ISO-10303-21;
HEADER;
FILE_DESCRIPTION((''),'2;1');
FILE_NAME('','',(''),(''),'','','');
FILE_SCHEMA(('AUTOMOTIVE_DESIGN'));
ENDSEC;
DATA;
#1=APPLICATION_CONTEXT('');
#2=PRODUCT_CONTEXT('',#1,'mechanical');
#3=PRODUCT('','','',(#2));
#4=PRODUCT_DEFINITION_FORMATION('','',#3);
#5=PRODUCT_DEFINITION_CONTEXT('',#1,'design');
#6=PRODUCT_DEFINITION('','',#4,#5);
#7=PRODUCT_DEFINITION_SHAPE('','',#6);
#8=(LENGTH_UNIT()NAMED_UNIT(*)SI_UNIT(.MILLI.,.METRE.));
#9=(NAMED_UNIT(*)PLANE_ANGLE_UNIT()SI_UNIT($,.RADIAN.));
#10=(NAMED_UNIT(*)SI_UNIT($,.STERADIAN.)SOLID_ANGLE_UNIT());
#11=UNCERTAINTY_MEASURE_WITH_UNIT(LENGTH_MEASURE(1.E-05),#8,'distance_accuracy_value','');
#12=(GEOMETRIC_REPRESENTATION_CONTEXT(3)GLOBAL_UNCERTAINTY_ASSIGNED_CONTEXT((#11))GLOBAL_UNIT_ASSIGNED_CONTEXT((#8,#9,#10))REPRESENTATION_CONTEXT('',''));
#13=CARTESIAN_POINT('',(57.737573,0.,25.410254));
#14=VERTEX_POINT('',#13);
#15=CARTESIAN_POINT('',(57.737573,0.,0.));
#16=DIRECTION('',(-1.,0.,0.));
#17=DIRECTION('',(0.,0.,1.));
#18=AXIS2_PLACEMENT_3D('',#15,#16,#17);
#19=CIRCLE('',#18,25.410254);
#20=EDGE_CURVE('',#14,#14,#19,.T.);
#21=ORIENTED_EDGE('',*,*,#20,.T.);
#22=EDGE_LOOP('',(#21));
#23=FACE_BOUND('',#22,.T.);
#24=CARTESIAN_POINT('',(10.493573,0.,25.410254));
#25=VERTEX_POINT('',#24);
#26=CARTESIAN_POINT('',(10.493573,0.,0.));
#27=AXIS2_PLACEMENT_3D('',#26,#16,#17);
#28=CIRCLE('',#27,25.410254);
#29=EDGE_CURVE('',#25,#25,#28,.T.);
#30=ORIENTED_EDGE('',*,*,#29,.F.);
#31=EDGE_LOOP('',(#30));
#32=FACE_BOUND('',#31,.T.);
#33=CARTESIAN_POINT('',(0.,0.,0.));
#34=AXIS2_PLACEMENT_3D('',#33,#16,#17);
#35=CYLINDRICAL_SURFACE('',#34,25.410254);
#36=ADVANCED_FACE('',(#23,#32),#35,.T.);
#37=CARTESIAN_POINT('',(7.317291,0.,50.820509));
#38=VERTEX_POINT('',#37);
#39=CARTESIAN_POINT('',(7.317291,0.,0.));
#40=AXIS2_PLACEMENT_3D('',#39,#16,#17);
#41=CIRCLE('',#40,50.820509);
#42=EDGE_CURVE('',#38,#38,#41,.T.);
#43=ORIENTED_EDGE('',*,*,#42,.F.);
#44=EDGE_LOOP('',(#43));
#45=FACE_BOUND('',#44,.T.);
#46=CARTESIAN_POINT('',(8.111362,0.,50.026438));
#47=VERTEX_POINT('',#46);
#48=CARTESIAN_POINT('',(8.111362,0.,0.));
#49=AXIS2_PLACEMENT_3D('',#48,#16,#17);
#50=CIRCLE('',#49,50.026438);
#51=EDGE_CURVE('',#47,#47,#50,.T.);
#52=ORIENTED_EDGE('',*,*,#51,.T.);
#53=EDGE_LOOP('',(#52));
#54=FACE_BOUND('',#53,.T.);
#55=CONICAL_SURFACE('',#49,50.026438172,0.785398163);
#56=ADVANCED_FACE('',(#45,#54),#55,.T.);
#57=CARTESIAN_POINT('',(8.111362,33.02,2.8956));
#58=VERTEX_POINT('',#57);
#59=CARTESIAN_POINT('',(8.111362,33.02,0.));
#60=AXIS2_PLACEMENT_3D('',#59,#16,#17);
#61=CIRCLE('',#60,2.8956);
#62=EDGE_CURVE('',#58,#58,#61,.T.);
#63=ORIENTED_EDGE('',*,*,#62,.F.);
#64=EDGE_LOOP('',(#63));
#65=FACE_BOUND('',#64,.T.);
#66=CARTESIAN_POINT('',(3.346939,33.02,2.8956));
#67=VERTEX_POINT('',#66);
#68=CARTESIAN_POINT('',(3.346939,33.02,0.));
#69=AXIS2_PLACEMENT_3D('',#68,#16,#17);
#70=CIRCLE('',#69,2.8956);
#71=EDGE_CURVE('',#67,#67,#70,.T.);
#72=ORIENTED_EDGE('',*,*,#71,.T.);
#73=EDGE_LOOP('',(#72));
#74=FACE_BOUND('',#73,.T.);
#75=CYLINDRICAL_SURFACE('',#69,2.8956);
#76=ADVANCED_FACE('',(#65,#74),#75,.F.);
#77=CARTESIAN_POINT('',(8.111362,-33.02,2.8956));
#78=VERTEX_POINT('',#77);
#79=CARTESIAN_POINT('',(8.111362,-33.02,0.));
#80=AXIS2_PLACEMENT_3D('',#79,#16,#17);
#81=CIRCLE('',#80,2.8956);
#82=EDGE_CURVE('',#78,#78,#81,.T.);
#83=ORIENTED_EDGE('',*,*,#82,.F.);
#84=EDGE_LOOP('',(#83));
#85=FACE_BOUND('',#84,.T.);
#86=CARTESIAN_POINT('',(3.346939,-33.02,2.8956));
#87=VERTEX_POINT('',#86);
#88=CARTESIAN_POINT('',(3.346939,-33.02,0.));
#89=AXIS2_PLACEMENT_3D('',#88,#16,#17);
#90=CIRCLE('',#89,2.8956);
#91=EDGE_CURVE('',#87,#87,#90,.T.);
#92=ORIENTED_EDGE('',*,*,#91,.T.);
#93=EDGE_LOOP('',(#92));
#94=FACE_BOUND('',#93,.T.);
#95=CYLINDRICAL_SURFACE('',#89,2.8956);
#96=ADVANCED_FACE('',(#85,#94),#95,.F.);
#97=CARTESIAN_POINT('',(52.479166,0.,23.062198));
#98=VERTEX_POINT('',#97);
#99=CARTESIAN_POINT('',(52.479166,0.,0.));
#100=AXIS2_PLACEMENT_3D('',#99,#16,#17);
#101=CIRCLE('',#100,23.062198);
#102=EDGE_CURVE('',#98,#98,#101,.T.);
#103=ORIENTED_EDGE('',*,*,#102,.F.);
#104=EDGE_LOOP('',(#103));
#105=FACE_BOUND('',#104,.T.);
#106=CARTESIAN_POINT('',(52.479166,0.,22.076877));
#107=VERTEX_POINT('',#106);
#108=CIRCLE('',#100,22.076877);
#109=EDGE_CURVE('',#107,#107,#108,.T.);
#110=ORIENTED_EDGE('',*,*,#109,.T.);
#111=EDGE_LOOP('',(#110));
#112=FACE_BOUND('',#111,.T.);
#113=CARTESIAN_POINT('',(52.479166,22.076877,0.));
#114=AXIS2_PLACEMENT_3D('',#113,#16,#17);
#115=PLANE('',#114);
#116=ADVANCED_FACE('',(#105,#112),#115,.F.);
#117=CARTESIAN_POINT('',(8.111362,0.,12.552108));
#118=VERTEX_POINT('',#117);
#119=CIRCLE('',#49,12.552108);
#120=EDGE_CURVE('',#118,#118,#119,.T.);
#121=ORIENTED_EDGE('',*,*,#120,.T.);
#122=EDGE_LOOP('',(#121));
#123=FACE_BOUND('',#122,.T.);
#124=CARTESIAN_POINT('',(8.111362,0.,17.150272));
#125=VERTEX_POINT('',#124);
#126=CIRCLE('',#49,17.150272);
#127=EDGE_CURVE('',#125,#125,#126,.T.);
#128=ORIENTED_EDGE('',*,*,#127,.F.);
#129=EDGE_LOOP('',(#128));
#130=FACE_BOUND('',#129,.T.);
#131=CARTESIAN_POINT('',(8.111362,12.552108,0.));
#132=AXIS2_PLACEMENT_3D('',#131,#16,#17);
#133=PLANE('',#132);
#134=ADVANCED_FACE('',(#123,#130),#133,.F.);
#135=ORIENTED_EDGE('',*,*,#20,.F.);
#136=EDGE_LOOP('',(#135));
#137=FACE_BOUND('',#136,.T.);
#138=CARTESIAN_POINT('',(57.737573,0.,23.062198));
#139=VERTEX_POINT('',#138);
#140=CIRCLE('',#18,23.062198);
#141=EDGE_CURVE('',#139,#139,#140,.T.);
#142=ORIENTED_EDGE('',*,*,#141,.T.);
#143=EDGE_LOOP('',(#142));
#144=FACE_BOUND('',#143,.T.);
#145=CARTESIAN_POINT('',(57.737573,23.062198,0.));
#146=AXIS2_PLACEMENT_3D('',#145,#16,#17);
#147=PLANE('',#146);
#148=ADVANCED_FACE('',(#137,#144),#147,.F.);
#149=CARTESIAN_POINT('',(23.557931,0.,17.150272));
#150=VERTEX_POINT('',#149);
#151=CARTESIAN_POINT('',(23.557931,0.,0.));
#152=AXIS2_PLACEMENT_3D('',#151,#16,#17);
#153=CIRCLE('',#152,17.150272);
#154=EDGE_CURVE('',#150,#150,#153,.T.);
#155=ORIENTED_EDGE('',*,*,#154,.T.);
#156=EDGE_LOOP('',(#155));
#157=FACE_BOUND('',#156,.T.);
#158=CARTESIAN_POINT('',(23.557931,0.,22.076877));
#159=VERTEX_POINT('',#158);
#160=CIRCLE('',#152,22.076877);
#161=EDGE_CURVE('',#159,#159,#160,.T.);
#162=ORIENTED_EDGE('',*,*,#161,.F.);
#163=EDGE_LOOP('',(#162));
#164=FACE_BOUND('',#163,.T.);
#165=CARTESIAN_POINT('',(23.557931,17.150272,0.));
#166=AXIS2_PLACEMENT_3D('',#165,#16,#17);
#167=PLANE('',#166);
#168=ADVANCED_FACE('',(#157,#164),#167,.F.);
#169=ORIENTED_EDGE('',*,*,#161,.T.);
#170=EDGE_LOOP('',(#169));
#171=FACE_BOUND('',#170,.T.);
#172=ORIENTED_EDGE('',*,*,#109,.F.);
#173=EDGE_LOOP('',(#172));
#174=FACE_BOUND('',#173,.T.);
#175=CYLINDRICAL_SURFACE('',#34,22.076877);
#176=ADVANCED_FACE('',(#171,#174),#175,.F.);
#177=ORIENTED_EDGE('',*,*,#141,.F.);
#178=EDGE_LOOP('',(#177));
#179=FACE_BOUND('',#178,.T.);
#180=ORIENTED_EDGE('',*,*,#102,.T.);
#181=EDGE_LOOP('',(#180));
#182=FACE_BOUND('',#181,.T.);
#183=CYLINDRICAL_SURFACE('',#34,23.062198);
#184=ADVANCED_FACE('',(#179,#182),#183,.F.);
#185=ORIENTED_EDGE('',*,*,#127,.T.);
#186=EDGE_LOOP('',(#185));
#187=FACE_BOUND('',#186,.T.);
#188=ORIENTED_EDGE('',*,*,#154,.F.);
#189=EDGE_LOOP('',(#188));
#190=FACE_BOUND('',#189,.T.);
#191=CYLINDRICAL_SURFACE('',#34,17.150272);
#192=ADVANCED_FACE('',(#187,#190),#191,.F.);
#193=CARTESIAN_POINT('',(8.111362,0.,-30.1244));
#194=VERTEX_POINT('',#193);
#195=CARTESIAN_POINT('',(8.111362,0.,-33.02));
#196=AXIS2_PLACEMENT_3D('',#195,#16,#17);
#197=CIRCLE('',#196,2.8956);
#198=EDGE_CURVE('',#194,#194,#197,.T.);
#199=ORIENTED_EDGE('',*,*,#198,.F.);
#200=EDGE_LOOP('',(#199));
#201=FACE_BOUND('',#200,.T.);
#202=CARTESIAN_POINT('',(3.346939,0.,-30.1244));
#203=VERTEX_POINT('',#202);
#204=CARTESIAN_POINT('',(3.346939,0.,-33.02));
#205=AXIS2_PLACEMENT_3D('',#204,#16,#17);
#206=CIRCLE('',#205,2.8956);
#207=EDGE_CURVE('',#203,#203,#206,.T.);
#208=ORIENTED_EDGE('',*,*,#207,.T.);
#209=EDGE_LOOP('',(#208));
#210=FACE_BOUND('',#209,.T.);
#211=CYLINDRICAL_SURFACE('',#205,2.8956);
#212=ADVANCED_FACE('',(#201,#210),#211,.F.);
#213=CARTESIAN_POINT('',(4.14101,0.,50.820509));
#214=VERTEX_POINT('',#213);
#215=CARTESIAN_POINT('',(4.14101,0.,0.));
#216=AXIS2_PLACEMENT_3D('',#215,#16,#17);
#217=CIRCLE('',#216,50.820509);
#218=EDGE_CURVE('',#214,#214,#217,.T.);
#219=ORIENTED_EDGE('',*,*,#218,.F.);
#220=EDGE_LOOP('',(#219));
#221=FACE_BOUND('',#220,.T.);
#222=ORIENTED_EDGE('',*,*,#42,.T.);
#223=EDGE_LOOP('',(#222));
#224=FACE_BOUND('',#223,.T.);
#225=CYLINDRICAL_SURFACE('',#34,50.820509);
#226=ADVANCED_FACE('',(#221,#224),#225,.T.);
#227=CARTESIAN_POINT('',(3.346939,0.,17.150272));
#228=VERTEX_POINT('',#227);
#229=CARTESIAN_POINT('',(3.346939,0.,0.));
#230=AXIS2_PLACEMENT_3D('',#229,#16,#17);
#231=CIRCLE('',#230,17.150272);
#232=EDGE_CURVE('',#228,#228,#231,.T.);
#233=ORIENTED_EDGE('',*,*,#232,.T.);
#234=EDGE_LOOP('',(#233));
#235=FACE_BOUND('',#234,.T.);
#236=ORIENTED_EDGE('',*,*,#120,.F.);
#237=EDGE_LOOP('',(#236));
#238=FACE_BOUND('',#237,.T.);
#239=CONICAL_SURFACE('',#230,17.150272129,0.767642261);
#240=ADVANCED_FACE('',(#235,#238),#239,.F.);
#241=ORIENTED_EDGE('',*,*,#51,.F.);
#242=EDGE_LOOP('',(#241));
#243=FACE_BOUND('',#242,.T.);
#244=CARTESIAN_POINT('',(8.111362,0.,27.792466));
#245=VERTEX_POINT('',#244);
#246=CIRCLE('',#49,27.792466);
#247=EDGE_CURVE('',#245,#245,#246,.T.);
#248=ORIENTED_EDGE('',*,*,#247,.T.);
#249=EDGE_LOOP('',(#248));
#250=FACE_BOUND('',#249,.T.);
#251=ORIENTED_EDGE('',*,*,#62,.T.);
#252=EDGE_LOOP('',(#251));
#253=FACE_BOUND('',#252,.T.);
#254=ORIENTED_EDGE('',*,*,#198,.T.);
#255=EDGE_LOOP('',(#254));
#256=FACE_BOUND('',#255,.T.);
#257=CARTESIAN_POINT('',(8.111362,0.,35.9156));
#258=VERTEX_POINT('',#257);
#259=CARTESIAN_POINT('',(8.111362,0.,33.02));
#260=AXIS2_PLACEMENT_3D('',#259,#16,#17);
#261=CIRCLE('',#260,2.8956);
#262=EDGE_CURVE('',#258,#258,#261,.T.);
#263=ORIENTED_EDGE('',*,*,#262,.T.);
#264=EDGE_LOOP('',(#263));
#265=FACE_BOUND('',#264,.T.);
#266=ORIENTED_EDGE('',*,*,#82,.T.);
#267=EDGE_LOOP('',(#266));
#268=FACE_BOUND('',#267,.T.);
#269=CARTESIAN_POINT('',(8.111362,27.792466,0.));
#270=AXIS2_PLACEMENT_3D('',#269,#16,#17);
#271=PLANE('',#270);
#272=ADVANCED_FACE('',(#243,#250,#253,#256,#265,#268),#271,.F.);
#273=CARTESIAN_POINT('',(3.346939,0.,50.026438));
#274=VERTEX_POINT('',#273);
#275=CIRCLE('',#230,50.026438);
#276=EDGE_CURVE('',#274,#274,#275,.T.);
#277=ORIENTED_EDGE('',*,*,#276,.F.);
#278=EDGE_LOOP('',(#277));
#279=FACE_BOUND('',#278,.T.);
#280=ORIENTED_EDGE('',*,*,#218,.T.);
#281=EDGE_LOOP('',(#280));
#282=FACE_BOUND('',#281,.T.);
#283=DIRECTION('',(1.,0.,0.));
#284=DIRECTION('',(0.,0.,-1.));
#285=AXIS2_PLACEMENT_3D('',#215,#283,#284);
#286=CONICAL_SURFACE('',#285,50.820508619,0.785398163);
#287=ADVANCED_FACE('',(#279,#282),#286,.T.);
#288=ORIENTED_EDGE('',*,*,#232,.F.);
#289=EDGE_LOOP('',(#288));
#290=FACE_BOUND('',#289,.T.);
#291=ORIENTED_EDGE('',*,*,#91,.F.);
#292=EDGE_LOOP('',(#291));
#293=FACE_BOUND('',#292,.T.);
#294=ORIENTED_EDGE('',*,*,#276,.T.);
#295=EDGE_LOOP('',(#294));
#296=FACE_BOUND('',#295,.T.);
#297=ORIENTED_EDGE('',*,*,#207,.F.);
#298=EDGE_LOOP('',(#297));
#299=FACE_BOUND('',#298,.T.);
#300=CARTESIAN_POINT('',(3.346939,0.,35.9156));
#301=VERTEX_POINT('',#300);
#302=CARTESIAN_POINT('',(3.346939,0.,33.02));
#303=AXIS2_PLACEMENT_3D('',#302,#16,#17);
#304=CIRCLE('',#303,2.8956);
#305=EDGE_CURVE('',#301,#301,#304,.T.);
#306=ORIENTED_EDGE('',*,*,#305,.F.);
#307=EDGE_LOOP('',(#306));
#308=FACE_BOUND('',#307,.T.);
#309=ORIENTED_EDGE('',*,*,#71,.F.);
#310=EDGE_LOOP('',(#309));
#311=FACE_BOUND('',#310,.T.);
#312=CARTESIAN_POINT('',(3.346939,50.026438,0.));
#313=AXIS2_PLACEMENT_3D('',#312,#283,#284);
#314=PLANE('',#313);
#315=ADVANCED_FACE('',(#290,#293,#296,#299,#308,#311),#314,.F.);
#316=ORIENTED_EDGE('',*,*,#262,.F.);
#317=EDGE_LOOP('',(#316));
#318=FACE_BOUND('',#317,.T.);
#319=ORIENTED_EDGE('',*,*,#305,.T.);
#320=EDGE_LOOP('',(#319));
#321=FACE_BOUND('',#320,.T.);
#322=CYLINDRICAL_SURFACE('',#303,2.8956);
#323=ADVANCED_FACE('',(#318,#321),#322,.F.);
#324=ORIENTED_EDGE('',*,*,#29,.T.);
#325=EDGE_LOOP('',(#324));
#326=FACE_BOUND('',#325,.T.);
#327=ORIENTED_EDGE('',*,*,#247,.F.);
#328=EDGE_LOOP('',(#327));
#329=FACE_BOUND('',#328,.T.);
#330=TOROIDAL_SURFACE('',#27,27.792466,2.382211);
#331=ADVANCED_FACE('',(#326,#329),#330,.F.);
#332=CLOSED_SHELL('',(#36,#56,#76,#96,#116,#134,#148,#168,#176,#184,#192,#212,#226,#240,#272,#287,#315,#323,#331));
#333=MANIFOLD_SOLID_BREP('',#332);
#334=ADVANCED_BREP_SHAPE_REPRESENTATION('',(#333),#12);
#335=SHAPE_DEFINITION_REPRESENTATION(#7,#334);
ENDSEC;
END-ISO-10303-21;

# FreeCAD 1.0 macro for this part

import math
import FreeCAD as App
import Part
import Sketcher

V = App.Vector
Q = App.Units.Quantity

doc = App.newDocument("Part")
params = doc.addObject("Spreadsheet::Sheet", "Params")
for row, (alias, value) in enumerate([
    ("sketch1_width", "1.86 in"),
    ("revolution_angle", "360 deg"),
    ("sketch2_diameter", "0.228 in"),
    ("hole_diameter", "0.228 in"),
], start=1):
    params.set(f"A{row}", alias)
    params.set(f"B{row}", "=" + value)
    params.setAlias(f"B{row}", alias)

body = doc.addObject("PartDesign::Body", "Body")

# Sketch on XY plane
sketch1 = body.newObject("Sketcher::SketchObject", "Sketch")
sketch1.AttachmentSupport = (doc.getObject("XY_Plane"), [""])
sketch1.MapMode = "FlatFace"
sketch1.addGeometry([
    Part.LineSegment(V(8.1, 12.6, 0), V(8.1, 17.2, 0)),  # 0
    Part.LineSegment(V(8.1, 17.2, 0), V(23.6, 17.2, 0)),  # 1
    Part.LineSegment(V(23.6, 17.2, 0), V(23.6, 22.1, 0)),  # 2
    Part.LineSegment(V(23.6, 22.1, 0), V(52.5, 22.1, 0)),  # 3
    Part.LineSegment(V(52.5, 22.1, 0), V(52.5, 23.1, 0)),  # 4
    Part.LineSegment(V(52.5, 23.1, 0), V(57.7, 23.1, 0)),  # 5
    Part.LineSegment(V(57.7, 23.1, 0), V(57.7, 25.4, 0)),  # 6
    Part.LineSegment(V(57.7, 25.4, 0), V(10.5, 25.4, 0)),  # 7
    Part.ArcOfCircle(Part.Circle(V(10.5, 27.8, 0), V(0, 0, 1), 2.4), math.radians(-180), math.radians(-90)),  # 8
    Part.LineSegment(V(8.1, 27.8, 0), V(8.1, 50, 0)),  # 9
    Part.LineSegment(V(8.1, 50, 0), V(7.3, 50.8, 0)),  # 10
    Part.LineSegment(V(7.3, 50.8, 0), V(4.1, 50.8, 0)),  # 11
    Part.LineSegment(V(4.1, 50.8, 0), V(3.3, 50, 0)),  # 12
    Part.LineSegment(V(3.3, 50, 0), V(3.3, 17.2, 0)),  # 13
    Part.LineSegment(V(3.3, 17.2, 0), V(8.1, 12.6, 0)),  # 14
], False)
sketch1.addConstraint([
    Sketcher.Constraint("Coincident", 0, 2, 1, 1),
    Sketcher.Constraint("Coincident", 1, 2, 2, 1),
    Sketcher.Constraint("Coincident", 2, 2, 3, 1),
    Sketcher.Constraint("Coincident", 3, 2, 4, 1),
    Sketcher.Constraint("Coincident", 4, 2, 5, 1),
    Sketcher.Constraint("Coincident", 5, 2, 6, 1),
    Sketcher.Constraint("Coincident", 6, 2, 7, 1),
    Sketcher.Constraint("Tangent", 7, 2, 8, 2),
    Sketcher.Constraint("Tangent", 8, 1, 9, 1),
    Sketcher.Constraint("Coincident", 9, 2, 10, 1),
    Sketcher.Constraint("Coincident", 10, 2, 11, 1),
    Sketcher.Constraint("Coincident", 11, 2, 12, 1),
    Sketcher.Constraint("Coincident", 12, 2, 13, 1),
    Sketcher.Constraint("Coincident", 13, 2, 14, 1),
    Sketcher.Constraint("Coincident", 14, 2, 0, 1),
    Sketcher.Constraint("Vertical", 0),
    Sketcher.Constraint("Horizontal", 1),
    Sketcher.Constraint("Vertical", 2),
    Sketcher.Constraint("Horizontal", 3),
    Sketcher.Constraint("Vertical", 4),
    Sketcher.Constraint("Horizontal", 5),
    Sketcher.Constraint("Vertical", 6),
    Sketcher.Constraint("Horizontal", 7),
    Sketcher.Constraint("Vertical", 9),
    Sketcher.Constraint("Horizontal", 11),
    Sketcher.Constraint("Vertical", 13),
    Sketcher.Constraint("Perpendicular", 10, 12),
    Sketcher.Constraint("Horizontal", 9, 2, 12, 2),
    Sketcher.Constraint("Horizontal", 1, 2, 13, 2),
    Sketcher.Constraint("Vertical", 0, 2, 8, 1),
    Sketcher.Constraint("Equal", 10, 12),
    Sketcher.Constraint("DistanceX", 7, 2, 7, 1, Q("1.86 in")),
    Sketcher.Constraint("Radius", 8, Q("2.382211 mm")),
    Sketcher.Constraint("DistanceX", 1, 1, 1, 2, Q("15.446569 mm")),
    Sketcher.Constraint("DistanceX", 11, 2, 11, 1, Q("3.176282 mm")),
    Sketcher.Constraint("DistanceY", 4, 1, 4, 2, Q("0.985321 mm")),
    Sketcher.Constraint("DistanceY", -1, 1, 4, 2, Q("23.062198 mm")),
    Sketcher.Constraint("DistanceX", 3, 1, 3, 2, Q("28.921235 mm")),
    Sketcher.Constraint("DistanceY", 0, 1, 0, 2, Q("4.598164 mm")),
    Sketcher.Constraint("DistanceY", 2, 1, 2, 2, Q("4.926605 mm")),
    Sketcher.Constraint("DistanceY", 6, 1, 6, 2, Q("2.348056 mm")),
    Sketcher.Constraint("DistanceY", 9, 1, 9, 2, Q("22.233973 mm")),
    Sketcher.Constraint("DistanceX", -1, 1, 0, 2, Q("8.111362 mm")),
    Sketcher.Constraint("DistanceX", -1, 1, 10, 2, Q("7.317291 mm")),
])
sketch1.setExpression("Constraints[31]", "Params.sketch1_width")
revolution = body.newObject("PartDesign::Revolution", "Revolution")
revolution.Profile = sketch1
revolution.ReferenceAxis = (sketch1, ["H_Axis"])
revolution.setExpression("Angle", "Params.revolution_angle")

# Sketch on YZ plane
sketch2 = body.newObject("Sketcher::SketchObject", "Sketch001")
sketch2.AttachmentSupport = (doc.getObject("YZ_Plane"), [""])
sketch2.MapMode = "FlatFace"
sketch2.AttachmentOffset = App.Placement(V(0, 0, 3.346939), App.Rotation())
sketch2.addGeometry(Part.Circle(V(33, 0, 0), V(0, 0, 1), 2.9), False)
sketch2.addConstraint([
    Sketcher.Constraint("PointOnObject", 0, 3, -1),
    Sketcher.Constraint("Diameter", 0, Q("0.228 in")),
    Sketcher.Constraint("DistanceX", -1, 1, 0, 3, Q("1.3 in")),
])
sketch2.setExpression("Constraints[1]", "Params.sketch2_diameter")
doc.recompute()
hole = body.newObject("PartDesign::Hole", "Hole")
hole.Profile = sketch2
hole.ThreadType = "None"
hole.setExpression("Diameter", "Params.hole_diameter")
hole.DepthType = "ThroughAll"
hole.Reversed = True
doc.recompute()

polarpattern = body.newObject("PartDesign::PolarPattern", "PolarPattern")
polarpattern.Originals = [hole]
polarpattern.Axis = (doc.getObject("X_Axis"), [""])
polarpattern.Angle = 360
polarpattern.Occurrences = 4
body.Tip = polarpattern

doc.recompute()
